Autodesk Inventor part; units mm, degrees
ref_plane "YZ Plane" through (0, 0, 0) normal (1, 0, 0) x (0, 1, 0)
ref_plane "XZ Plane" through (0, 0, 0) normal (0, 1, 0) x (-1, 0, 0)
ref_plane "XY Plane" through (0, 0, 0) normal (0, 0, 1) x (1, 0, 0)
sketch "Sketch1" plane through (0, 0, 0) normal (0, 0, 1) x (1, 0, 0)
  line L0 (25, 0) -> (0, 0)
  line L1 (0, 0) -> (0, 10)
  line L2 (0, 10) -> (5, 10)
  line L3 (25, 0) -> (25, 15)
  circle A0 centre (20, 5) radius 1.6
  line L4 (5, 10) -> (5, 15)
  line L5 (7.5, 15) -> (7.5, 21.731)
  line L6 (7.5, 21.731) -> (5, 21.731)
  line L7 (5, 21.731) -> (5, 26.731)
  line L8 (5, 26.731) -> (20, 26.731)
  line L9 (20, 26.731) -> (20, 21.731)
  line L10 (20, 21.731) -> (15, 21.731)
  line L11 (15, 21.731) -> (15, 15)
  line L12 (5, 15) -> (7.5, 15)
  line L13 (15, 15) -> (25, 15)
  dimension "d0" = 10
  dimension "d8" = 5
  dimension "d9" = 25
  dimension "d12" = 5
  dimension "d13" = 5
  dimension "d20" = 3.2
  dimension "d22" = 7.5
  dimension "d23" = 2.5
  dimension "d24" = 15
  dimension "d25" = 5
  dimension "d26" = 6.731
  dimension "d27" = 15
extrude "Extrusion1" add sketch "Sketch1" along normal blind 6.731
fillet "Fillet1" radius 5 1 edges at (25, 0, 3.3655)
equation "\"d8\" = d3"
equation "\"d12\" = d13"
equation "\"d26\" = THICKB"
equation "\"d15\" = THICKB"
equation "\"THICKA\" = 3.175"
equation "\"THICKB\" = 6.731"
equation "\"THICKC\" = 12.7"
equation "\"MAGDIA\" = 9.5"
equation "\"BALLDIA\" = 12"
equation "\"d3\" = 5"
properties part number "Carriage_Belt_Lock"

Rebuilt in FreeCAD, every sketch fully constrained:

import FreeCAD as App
import Part
import Sketcher
from FreeCAD import Vector


def edges_at(feature, points):
    """Names of the edges that pass closest to the given points."""
    edges = feature.Shape.Edges
    near = lambda p: min(range(len(edges)), key=lambda i: edges[i].distToShape(Part.Vertex(*p))[0])
    return sorted({f"Edge{near(p) + 1}" for p in points})


def add_polygon(sketch, points):
    """Adds a closed chain of lines whose ends are joined by coincident constraints."""
    first, n = sketch.GeometryCount, len(points)
    for a, b in zip(points, points[1:] + points[:1]):
        sketch.addGeometry(Part.LineSegment(App.Vector(*a, 0), App.Vector(*b, 0)), False)
    for i in range(n):
        sketch.addConstraint(Sketcher.Constraint("Coincident", first + i, 2, first + (i + 1) % n, 1))

doc = App.newDocument("Part")
body = doc.addObject("PartDesign::Body", "Body")

# Sketch on XY plane
sketch1 = body.newObject("Sketcher::SketchObject", "Sketch")
sketch1.AttachmentSupport = (doc.getObject("XY_Plane"), [""])
sketch1.MapMode = "FlatFace"
add_polygon(sketch1, [(0, 0), (25, 0), (25, 15), (15, 15), (15, 21.731), (20, 21.731), (20, 26.731), (5, 26.731), (5, 21.731), (7.5, 21.731), (7.5, 15), (5, 15), (5, 10), (0, 10)])  # lines 0-13
sketch1.addGeometry(Part.Circle(Vector(20, 5, 0), Vector(0, 0, 1), 1.6), False)  # 14
sketch1.addConstraint([
    Sketcher.Constraint("Horizontal", 0),
    Sketcher.Constraint("Vertical", 1),
    Sketcher.Constraint("Horizontal", 2),
    Sketcher.Constraint("Vertical", 3),
    Sketcher.Constraint("Horizontal", 4),
    Sketcher.Constraint("Vertical", 5),
    Sketcher.Constraint("Horizontal", 6),
    Sketcher.Constraint("Vertical", 7),
    Sketcher.Constraint("Horizontal", 8),
    Sketcher.Constraint("Vertical", 9),
    Sketcher.Constraint("Horizontal", 10),
    Sketcher.Constraint("Vertical", 11),
    Sketcher.Constraint("Horizontal", 12),
    Sketcher.Constraint("Vertical", 13),
    Sketcher.Constraint("Coincident", 13, 2, -1, 1),
    Sketcher.Constraint("Horizontal", 4, 2, 7, 2),
    Sketcher.Constraint("Horizontal", 2, 2, 9, 2),
    Sketcher.Constraint("Vertical", 14, 3, 4, 2),
    Sketcher.Constraint("Vertical", 7, 2, 10, 2),
    Sketcher.Constraint("Equal", 4, 12),
    Sketcher.Constraint("Equal", 6, 1),
    Sketcher.Constraint("Equal", 12, 5),
    Sketcher.Constraint("Equal", 7, 11),
    Sketcher.Constraint("Equal", 2, 13),
    Sketcher.Constraint("Diameter", 14, 3.2),
    Sketcher.Constraint("DistanceX", 0, 1, 0, 2, 25.0),
    Sketcher.Constraint("DistanceX", 2, 2, 2, 1, 10.0),
    Sketcher.Constraint("DistanceX", 8, 1, 8, 2, 2.5),
    Sketcher.Constraint("DistanceY", -1, 1, 14, 3, 5.0),
    Sketcher.Constraint("DistanceY", 3, 1, 3, 2, 6.731),
])
pad1 = body.newObject("PartDesign::Pad", "Pad")
pad1.Profile = sketch1
pad1.Length = 6.731
doc.recompute()

fillet = body.newObject("PartDesign::Fillet", "Fillet")
fillet.Base = (pad1, edges_at(pad1, [(25, 0, 3.365)]))
fillet.Radius = 5

doc.recompute()
